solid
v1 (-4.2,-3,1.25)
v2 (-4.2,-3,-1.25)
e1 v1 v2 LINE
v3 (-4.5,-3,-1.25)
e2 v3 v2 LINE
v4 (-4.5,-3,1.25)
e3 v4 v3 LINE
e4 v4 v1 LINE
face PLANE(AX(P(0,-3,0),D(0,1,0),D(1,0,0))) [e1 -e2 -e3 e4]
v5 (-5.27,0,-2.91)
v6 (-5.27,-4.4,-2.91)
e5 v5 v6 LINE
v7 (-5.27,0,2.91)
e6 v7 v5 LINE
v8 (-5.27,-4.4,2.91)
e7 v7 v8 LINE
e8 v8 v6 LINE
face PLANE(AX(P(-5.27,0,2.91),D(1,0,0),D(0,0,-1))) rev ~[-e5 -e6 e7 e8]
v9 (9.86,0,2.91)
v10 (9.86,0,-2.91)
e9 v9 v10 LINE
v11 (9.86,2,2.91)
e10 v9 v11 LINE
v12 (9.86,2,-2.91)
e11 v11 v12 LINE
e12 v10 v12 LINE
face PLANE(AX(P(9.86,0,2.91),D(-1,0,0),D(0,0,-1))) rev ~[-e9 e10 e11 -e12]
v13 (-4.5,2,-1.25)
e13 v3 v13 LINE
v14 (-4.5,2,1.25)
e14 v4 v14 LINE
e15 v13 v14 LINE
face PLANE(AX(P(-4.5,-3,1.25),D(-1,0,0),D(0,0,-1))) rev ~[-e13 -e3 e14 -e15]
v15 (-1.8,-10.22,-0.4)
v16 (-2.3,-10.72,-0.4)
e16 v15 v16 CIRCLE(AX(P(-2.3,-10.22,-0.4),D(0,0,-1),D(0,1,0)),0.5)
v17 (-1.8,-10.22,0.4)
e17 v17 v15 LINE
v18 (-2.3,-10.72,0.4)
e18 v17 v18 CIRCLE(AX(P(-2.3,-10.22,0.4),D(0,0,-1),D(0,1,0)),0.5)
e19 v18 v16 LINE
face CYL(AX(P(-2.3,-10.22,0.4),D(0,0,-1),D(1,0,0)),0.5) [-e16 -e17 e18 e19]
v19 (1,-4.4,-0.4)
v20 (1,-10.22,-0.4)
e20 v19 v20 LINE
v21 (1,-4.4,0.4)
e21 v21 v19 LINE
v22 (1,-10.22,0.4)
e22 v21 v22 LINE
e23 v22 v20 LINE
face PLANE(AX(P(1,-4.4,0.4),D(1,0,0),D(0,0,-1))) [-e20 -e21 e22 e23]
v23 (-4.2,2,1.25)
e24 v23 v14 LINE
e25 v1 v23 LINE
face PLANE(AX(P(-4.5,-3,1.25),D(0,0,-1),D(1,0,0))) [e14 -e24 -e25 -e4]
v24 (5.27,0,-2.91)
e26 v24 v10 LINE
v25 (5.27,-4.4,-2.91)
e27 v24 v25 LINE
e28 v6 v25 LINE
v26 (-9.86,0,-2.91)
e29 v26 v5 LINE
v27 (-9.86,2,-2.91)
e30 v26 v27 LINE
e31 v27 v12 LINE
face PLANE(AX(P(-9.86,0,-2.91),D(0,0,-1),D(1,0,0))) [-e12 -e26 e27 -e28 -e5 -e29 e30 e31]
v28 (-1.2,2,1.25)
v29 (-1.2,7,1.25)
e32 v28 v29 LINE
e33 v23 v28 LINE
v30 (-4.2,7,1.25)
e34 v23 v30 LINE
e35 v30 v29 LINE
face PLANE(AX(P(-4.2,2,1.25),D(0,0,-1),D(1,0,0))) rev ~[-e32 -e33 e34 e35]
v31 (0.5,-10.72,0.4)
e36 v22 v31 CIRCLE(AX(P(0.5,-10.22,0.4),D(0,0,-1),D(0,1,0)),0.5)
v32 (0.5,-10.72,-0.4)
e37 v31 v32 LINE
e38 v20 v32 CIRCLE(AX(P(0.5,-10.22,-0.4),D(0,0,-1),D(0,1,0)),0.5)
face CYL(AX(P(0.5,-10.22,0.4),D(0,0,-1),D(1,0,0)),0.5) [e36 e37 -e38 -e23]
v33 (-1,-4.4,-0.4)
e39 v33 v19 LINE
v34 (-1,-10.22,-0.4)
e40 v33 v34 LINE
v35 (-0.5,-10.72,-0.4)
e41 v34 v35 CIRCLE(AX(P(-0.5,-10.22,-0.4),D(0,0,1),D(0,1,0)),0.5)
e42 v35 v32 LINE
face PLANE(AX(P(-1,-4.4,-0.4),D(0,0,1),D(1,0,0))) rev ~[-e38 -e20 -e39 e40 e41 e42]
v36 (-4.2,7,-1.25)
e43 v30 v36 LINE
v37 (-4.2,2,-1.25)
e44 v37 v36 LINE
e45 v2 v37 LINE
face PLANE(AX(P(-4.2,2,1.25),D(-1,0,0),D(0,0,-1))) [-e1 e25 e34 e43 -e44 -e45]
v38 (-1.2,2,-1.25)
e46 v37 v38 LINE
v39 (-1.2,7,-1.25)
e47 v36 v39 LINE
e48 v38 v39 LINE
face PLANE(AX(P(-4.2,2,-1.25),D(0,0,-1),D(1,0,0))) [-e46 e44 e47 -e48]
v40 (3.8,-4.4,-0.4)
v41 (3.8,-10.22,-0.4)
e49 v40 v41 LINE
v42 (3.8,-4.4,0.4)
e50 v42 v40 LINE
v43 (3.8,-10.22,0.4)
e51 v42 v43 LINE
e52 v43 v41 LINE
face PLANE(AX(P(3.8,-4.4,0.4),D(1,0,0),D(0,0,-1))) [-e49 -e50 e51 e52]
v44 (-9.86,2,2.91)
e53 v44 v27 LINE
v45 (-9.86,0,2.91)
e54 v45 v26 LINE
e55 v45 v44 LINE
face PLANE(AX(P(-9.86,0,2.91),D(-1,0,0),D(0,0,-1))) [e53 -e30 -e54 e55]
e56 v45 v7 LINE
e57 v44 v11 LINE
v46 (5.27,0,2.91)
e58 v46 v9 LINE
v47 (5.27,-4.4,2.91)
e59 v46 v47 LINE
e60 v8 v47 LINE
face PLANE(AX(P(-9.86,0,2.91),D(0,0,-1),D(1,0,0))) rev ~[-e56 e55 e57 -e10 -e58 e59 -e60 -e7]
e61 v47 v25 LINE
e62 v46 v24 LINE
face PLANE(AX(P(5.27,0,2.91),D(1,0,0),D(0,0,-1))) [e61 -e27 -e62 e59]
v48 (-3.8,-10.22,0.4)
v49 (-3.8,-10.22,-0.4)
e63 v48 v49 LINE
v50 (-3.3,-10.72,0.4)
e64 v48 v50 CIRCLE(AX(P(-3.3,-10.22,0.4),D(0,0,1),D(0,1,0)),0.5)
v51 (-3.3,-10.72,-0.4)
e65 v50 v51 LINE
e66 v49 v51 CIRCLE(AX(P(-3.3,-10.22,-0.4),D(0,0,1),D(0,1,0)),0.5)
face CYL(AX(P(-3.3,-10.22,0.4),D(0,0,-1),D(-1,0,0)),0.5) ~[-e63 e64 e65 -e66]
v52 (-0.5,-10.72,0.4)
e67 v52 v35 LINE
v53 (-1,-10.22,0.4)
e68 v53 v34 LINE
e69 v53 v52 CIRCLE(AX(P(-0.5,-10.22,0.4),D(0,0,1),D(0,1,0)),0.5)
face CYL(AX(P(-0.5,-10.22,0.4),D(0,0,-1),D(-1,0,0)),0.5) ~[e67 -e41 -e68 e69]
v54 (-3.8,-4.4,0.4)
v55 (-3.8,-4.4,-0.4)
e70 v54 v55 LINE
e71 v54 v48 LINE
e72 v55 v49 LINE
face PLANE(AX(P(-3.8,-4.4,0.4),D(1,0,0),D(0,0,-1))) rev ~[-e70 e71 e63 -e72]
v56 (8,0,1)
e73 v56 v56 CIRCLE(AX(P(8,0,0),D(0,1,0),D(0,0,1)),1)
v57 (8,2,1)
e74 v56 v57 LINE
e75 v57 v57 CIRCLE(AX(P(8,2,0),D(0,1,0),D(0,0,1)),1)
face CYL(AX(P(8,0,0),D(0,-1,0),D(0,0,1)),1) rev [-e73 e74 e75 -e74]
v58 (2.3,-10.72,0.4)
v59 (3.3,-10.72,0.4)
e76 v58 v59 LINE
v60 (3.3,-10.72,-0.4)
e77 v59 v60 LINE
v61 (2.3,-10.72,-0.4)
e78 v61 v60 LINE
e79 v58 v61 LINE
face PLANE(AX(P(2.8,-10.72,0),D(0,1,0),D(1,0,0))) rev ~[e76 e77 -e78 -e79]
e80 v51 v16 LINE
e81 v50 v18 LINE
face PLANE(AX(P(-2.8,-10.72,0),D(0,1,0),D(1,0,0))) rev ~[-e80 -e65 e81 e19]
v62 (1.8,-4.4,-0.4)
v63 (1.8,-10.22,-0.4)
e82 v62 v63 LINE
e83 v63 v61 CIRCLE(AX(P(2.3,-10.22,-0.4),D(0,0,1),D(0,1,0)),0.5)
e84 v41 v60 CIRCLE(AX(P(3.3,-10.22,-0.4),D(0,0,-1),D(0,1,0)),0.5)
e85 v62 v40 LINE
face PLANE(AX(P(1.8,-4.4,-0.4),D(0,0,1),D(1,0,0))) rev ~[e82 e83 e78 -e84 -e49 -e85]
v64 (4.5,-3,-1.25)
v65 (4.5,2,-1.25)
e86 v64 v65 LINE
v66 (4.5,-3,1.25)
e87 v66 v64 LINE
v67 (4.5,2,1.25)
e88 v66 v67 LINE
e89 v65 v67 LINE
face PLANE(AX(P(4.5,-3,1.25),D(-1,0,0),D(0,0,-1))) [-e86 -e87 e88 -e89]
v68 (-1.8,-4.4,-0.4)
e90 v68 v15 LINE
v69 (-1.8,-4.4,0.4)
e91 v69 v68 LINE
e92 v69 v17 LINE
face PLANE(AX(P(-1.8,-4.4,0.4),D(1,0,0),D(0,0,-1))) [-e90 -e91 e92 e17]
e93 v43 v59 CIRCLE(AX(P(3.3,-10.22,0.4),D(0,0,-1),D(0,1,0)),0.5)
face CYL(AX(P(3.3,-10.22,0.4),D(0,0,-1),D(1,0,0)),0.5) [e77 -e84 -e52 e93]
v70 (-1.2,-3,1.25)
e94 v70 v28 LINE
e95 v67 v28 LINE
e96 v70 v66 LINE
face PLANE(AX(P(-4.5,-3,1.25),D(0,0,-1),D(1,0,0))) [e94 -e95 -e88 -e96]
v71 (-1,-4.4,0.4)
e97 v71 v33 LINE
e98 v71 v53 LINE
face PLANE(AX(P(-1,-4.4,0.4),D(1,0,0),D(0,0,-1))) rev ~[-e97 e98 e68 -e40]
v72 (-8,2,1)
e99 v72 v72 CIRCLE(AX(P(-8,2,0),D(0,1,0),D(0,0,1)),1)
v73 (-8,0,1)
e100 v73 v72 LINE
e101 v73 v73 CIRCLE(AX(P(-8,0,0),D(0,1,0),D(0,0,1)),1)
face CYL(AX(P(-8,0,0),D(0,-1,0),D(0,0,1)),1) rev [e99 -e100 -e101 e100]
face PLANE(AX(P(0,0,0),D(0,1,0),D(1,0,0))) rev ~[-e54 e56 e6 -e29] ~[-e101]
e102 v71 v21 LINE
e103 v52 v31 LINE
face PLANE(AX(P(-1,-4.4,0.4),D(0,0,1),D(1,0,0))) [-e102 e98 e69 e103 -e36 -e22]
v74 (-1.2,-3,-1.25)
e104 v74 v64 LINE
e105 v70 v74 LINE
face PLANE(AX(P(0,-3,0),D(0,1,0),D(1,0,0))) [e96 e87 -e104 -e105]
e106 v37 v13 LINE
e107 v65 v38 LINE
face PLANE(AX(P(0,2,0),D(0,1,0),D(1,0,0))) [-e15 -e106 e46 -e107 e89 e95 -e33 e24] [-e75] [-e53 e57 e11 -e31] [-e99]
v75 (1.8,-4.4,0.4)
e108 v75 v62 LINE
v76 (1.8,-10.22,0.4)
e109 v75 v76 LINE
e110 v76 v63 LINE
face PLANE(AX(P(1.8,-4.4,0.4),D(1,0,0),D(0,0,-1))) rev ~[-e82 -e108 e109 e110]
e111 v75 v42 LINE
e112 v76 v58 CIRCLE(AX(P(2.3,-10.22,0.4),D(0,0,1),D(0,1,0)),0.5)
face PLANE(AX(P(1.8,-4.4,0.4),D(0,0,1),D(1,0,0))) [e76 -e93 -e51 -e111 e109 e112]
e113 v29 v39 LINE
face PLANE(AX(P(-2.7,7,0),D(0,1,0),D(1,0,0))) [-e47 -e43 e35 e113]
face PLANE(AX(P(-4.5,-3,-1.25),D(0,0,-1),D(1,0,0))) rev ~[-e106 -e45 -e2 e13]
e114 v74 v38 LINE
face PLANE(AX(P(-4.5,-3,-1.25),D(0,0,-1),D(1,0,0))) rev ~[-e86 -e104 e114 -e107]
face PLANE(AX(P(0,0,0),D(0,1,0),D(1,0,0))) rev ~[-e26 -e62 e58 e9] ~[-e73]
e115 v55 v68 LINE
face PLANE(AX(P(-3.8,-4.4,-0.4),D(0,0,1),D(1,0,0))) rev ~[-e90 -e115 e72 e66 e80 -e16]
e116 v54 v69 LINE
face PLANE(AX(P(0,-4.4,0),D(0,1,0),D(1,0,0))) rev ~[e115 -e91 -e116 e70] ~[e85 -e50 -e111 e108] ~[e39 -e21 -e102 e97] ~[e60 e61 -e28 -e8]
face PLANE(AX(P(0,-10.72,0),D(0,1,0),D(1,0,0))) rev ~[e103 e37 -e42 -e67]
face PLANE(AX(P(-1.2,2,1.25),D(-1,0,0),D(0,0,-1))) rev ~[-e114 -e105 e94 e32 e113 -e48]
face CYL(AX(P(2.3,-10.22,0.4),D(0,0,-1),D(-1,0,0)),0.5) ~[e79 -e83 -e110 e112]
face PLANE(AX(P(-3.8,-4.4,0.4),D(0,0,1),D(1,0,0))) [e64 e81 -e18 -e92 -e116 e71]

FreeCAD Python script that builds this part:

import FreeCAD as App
import Part
import Sketcher

V = App.Vector


def edges_at(feature, points):
    """Names of the edges that pass closest to the given points."""
    edges = feature.Shape.Edges
    near = lambda p: min(range(len(edges)), key=lambda i: edges[i].distToShape(Part.Vertex(*p))[0])
    return sorted({f"Edge{near(p) + 1}" for p in points})

doc = App.newDocument("Part")
body = doc.addObject("PartDesign::Body", "Body")

# Sketch on XZ plane
sketch1 = body.newObject("Sketcher::SketchObject", "Sketch")
sketch1.AttachmentSupport = (doc.getObject("XZ_Plane"), [""])
sketch1.MapMode = "FlatFace"
sketch1.addGeometry(Part.LineSegment(V(-9.9, -2.9, 0), V(-9.9, 2.9, 0)), False)
sketch1.addGeometry(Part.LineSegment(V(-9.9, 2.9, 0), V(9.9, 2.9, 0)), False)
sketch1.addGeometry(Part.LineSegment(V(9.9, 2.9, 0), V(9.9, -2.9, 0)), False)
sketch1.addGeometry(Part.LineSegment(V(9.9, -2.9, 0), V(-9.9, -2.9, 0)), False)
sketch1.addGeometry(Part.Circle(V(-8, 0, 0), V(0, 0, 1), 1), False)
sketch1.addGeometry(Part.Circle(V(8, 0, 0), V(0, 0, 1), 1), False)
sketch1.addConstraint(Sketcher.Constraint("Coincident", 0, 2, 1, 1))
sketch1.addConstraint(Sketcher.Constraint("Coincident", 1, 2, 2, 1))
sketch1.addConstraint(Sketcher.Constraint("Coincident", 2, 2, 3, 1))
sketch1.addConstraint(Sketcher.Constraint("Coincident", 3, 2, 0, 1))
sketch1.addConstraint(Sketcher.Constraint("Vertical", 0))
sketch1.addConstraint(Sketcher.Constraint("Horizontal", 1))
sketch1.addConstraint(Sketcher.Constraint("Vertical", 2))
sketch1.addConstraint(Sketcher.Constraint("Horizontal", 3))
sketch1.addConstraint(Sketcher.Constraint("Equal", 4, 5))
sketch1.addConstraint(Sketcher.Constraint("Symmetric", 4, 3, 5, 3, -1, 1))
sketch1.addConstraint(Sketcher.Constraint("Symmetric", 0, 2, 2, 2, -1, 1))
sketch1.addConstraint(Sketcher.Constraint("PointOnObject", 4, 3, -1))
sketch1.addConstraint(Sketcher.Constraint("Diameter", 4, 2.0))
sketch1.addConstraint(Sketcher.Constraint("DistanceX", 4, 3, -1, 1, 8.0))
sketch1.addConstraint(Sketcher.Constraint("DistanceX", 1, 1, 1, 2, 19.72))
sketch1.addConstraint(Sketcher.Constraint("DistanceY", 0, 1, 0, 2, 5.82))
pad1 = body.newObject("PartDesign::Pad", "Pad")
pad1.Profile = sketch1
pad1.Length = 2
pad1.Reversed = True

# Sketch on XZ plane
sketch2 = body.newObject("Sketcher::SketchObject", "Sketch001")
sketch2.AttachmentSupport = (doc.getObject("XZ_Plane"), [""])
sketch2.MapMode = "FlatFace"
sketch2.addGeometry(Part.LineSegment(V(-5, -3, 0), V(-5, 3, 0)), False)
sketch2.addGeometry(Part.LineSegment(V(-5, 3, 0), V(5, 3, 0)), False)
sketch2.addGeometry(Part.LineSegment(V(5, 3, 0), V(5, -3, 0)), False)
sketch2.addGeometry(Part.LineSegment(V(5, -3, 0), V(-5, -3, 0)), False)
sketch2.addConstraint(Sketcher.Constraint("Coincident", 0, 2, 1, 1))
sketch2.addConstraint(Sketcher.Constraint("Coincident", 1, 2, 2, 1))
sketch2.addConstraint(Sketcher.Constraint("Coincident", 2, 2, 3, 1))
sketch2.addConstraint(Sketcher.Constraint("Coincident", 3, 2, 0, 1))
sketch2.addConstraint(Sketcher.Constraint("Vertical", 0))
sketch2.addConstraint(Sketcher.Constraint("Horizontal", 1))
sketch2.addConstraint(Sketcher.Constraint("Vertical", 2))
sketch2.addConstraint(Sketcher.Constraint("Horizontal", 3))
sketch2.addConstraint(Sketcher.Constraint("Symmetric", 0, 2, 2, 2, -1, 1))
sketch2.addConstraint(Sketcher.Constraint("DistanceX", 1, 1, 1, 2, 10.54))
sketch2.addConstraint(Sketcher.Constraint("DistanceY", 0, 1, 0, 2, 5.82))
pad2 = body.newObject("PartDesign::Pad", "Pad001")
pad2.Profile = sketch2
pad2.Length = 4.4

# Sketch on XZ plane
sketch3 = body.newObject("Sketcher::SketchObject", "Sketch002")
sketch3.AttachmentSupport = (doc.getObject("XZ_Plane"), [""])
sketch3.MapMode = "FlatFace"
sketch3.addGeometry(Part.LineSegment(V(-4.5, -1.2, 0), V(-4.5, 1.2, 0)), False)
sketch3.addGeometry(Part.LineSegment(V(-4.5, 1.2, 0), V(4.5, 1.2, 0)), False)
sketch3.addGeometry(Part.LineSegment(V(4.5, 1.2, 0), V(4.5, -1.2, 0)), False)
sketch3.addGeometry(Part.LineSegment(V(4.5, -1.2, 0), V(-4.5, -1.2, 0)), False)
sketch3.addConstraint(Sketcher.Constraint("Coincident", 0, 2, 1, 1))
sketch3.addConstraint(Sketcher.Constraint("Coincident", 1, 2, 2, 1))
sketch3.addConstraint(Sketcher.Constraint("Coincident", 2, 2, 3, 1))
sketch3.addConstraint(Sketcher.Constraint("Coincident", 3, 2, 0, 1))
sketch3.addConstraint(Sketcher.Constraint("Vertical", 0))
sketch3.addConstraint(Sketcher.Constraint("Horizontal", 1))
sketch3.addConstraint(Sketcher.Constraint("Vertical", 2))
sketch3.addConstraint(Sketcher.Constraint("Horizontal", 3))
sketch3.addConstraint(Sketcher.Constraint("Symmetric", 0, 2, 2, 2, -1, 1))
sketch3.addConstraint(Sketcher.Constraint("DistanceX", 1, 1, 1, 2, 9.0))
sketch3.addConstraint(Sketcher.Constraint("DistanceY", 0, 1, 0, 2, 2.5))
pocket1 = body.newObject("PartDesign::Pocket", "Pocket")
pocket1.Profile = sketch3
pocket1.Type = "TwoLengths"
pocket1.Length = 12.182473
pocket1.Length2 = 3

# Sketch on XZ plane
sketch4 = body.newObject("Sketcher::SketchObject", "Sketch003")
sketch4.AttachmentSupport = (doc.getObject("XZ_Plane"), [""])
sketch4.MapMode = "FlatFace"
sketch4.AttachmentOffset = App.Placement(V(0, 0, 3), App.Rotation())
sketch4.addGeometry(Part.LineSegment(V(-4.2, -1.2, 0), V(-4.2, 1.2, 0)), False)
sketch4.addGeometry(Part.LineSegment(V(-4.2, 1.2, 0), V(-1.2, 1.2, 0)), False)
sketch4.addGeometry(Part.LineSegment(V(-1.2, 1.2, 0), V(-1.2, -1.2, 0)), False)
sketch4.addGeometry(Part.LineSegment(V(-1.2, -1.2, 0), V(-4.2, -1.2, 0)), False)
sketch4.addConstraint(Sketcher.Constraint("Coincident", 0, 2, 1, 1))
sketch4.addConstraint(Sketcher.Constraint("Coincident", 1, 2, 2, 1))
sketch4.addConstraint(Sketcher.Constraint("Coincident", 2, 2, 3, 1))
sketch4.addConstraint(Sketcher.Constraint("Coincident", 3, 2, 0, 1))
sketch4.addConstraint(Sketcher.Constraint("Vertical", 0))
sketch4.addConstraint(Sketcher.Constraint("Horizontal", 1))
sketch4.addConstraint(Sketcher.Constraint("Vertical", 2))
sketch4.addConstraint(Sketcher.Constraint("Horizontal", 3))
sketch4.addConstraint(Sketcher.Constraint("DistanceX", 1, 1, 1, 2, 3.0))
sketch4.addConstraint(Sketcher.Constraint("DistanceY", 0, 1, 0, 2, 2.5))
sketch4.addConstraint(Sketcher.Constraint("DistanceX", 0, 2, -1, 1, 4.2))
sketch4.addConstraint(Sketcher.Constraint("DistanceY", -1, 1, 0, 2, 1.25))
pad3 = body.newObject("PartDesign::Pad", "Pad002")
pad3.Profile = sketch4
pad3.Length = 5
pad3.Reversed = True

# Sketch on XZ plane
sketch5 = body.newObject("Sketcher::SketchObject", "Sketch004")
sketch5.AttachmentSupport = (doc.getObject("XZ_Plane"), [""])
sketch5.MapMode = "FlatFace"
sketch5.AttachmentOffset = App.Placement(V(0, 0, -2), App.Rotation())
sketch5.addGeometry(Part.LineSegment(V(-4.2, -1.2, 0), V(-4.2, 1.2, 0)), False)
sketch5.addGeometry(Part.LineSegment(V(-4.2, 1.2, 0), V(-1.2, 1.2, 0)), False)
sketch5.addGeometry(Part.LineSegment(V(-1.2, 1.2, 0), V(-1.2, -1.2, 0)), False)
sketch5.addGeometry(Part.LineSegment(V(-1.2, -1.2, 0), V(-4.2, -1.2, 0)), False)
sketch5.addConstraint(Sketcher.Constraint("Coincident", 0, 2, 1, 1))
sketch5.addConstraint(Sketcher.Constraint("Coincident", 1, 2, 2, 1))
sketch5.addConstraint(Sketcher.Constraint("Coincident", 2, 2, 3, 1))
sketch5.addConstraint(Sketcher.Constraint("Coincident", 3, 2, 0, 1))
sketch5.addConstraint(Sketcher.Constraint("Vertical", 0))
sketch5.addConstraint(Sketcher.Constraint("Horizontal", 1))
sketch5.addConstraint(Sketcher.Constraint("Vertical", 2))
sketch5.addConstraint(Sketcher.Constraint("Horizontal", 3))
sketch5.addConstraint(Sketcher.Constraint("DistanceX", 1, 1, 1, 2, 3.0))
sketch5.addConstraint(Sketcher.Constraint("DistanceY", 0, 1, 0, 2, 2.5))
sketch5.addConstraint(Sketcher.Constraint("DistanceX", 0, 2, -1, 1, 4.2))
sketch5.addConstraint(Sketcher.Constraint("DistanceY", -1, 1, 0, 2, 1.25))
pad4 = body.newObject("PartDesign::Pad", "Pad003")
pad4.Profile = sketch5
pad4.Length = 5
pad4.Reversed = True

# Sketch on XZ plane
sketch6 = body.newObject("Sketcher::SketchObject", "Sketch005")
sketch6.AttachmentSupport = (doc.getObject("XZ_Plane"), [""])
sketch6.MapMode = "FlatFace"
sketch6.AttachmentOffset = App.Placement(V(0, 0, 4.4), App.Rotation())
sketch6.addGeometry(Part.LineSegment(V(-3.8, -0.4, 0), V(-3.8, 0.4, 0)), False)
sketch6.addGeometry(Part.LineSegment(V(-3.8, 0.4, 0), V(-1.8, 0.4, 0)), False)
sketch6.addGeometry(Part.LineSegment(V(-1.8, 0.4, 0), V(-1.8, -0.4, 0)), False)
sketch6.addGeometry(Part.LineSegment(V(-1.8, -0.4, 0), V(-3.8, -0.4, 0)), False)
sketch6.addGeometry(Part.LineSegment(V(-1, -0.4, 0), V(-1, 0.4, 0)), False)
sketch6.addGeometry(Part.LineSegment(V(-1, 0.4, 0), V(1, 0.4, 0)), False)
sketch6.addGeometry(Part.LineSegment(V(1, 0.4, 0), V(1, -0.4, 0)), False)
sketch6.addGeometry(Part.LineSegment(V(1, -0.4, 0), V(-1, -0.4, 0)), False)
sketch6.addGeometry(Part.LineSegment(V(1.8, -0.4, 0), V(1.8, 0.4, 0)), False)
sketch6.addGeometry(Part.LineSegment(V(1.8, 0.4, 0), V(3.8, 0.4, 0)), False)
sketch6.addGeometry(Part.LineSegment(V(3.8, 0.4, 0), V(3.8, -0.4, 0)), False)
sketch6.addGeometry(Part.LineSegment(V(3.8, -0.4, 0), V(1.8, -0.4, 0)), False)
sketch6.addConstraint(Sketcher.Constraint("Coincident", 0, 2, 1, 1))
sketch6.addConstraint(Sketcher.Constraint("Coincident", 1, 2, 2, 1))
sketch6.addConstraint(Sketcher.Constraint("Coincident", 2, 2, 3, 1))
sketch6.addConstraint(Sketcher.Constraint("Coincident", 3, 2, 0, 1))
sketch6.addConstraint(Sketcher.Constraint("Coincident", 4, 2, 5, 1))
sketch6.addConstraint(Sketcher.Constraint("Coincident", 5, 2, 6, 1))
sketch6.addConstraint(Sketcher.Constraint("Coincident", 6, 2, 7, 1))
sketch6.addConstraint(Sketcher.Constraint("Coincident", 7, 2, 4, 1))
sketch6.addConstraint(Sketcher.Constraint("Coincident", 8, 2, 9, 1))
sketch6.addConstraint(Sketcher.Constraint("Coincident", 9, 2, 10, 1))
sketch6.addConstraint(Sketcher.Constraint("Coincident", 10, 2, 11, 1))
sketch6.addConstraint(Sketcher.Constraint("Coincident", 11, 2, 8, 1))
sketch6.addConstraint(Sketcher.Constraint("Vertical", 0))
sketch6.addConstraint(Sketcher.Constraint("Horizontal", 1))
sketch6.addConstraint(Sketcher.Constraint("Vertical", 2))
sketch6.addConstraint(Sketcher.Constraint("Horizontal", 3))
sketch6.addConstraint(Sketcher.Constraint("Vertical", 4))
sketch6.addConstraint(Sketcher.Constraint("Horizontal", 5))
sketch6.addConstraint(Sketcher.Constraint("Vertical", 6))
sketch6.addConstraint(Sketcher.Constraint("Horizontal", 7))
sketch6.addConstraint(Sketcher.Constraint("Vertical", 8))
sketch6.addConstraint(Sketcher.Constraint("Horizontal", 9))
sketch6.addConstraint(Sketcher.Constraint("Vertical", 10))
sketch6.addConstraint(Sketcher.Constraint("Horizontal", 11))
sketch6.addConstraint(Sketcher.Constraint("Symmetric", 4, 2, 6, 2, -1, 1))
sketch6.addConstraint(Sketcher.Constraint("Symmetric", 2, 2, 8, 2, -1, 1))
sketch6.addConstraint(Sketcher.Constraint("Symmetric", 0, 2, 10, 2, -1, 1))
sketch6.addConstraint(Sketcher.Constraint("Horizontal", 1, 2, 4, 2))
sketch6.addConstraint(Sketcher.Constraint("Horizontal", 3, 2, 6, 2))
sketch6.addConstraint(Sketcher.Constraint("Equal", 3, 5))
sketch6.addConstraint(Sketcher.Constraint("DistanceX", 1, 1, 1, 2, 2.0))
sketch6.addConstraint(Sketcher.Constraint("DistanceY", 0, 1, 0, 2, 0.8))
sketch6.addConstraint(Sketcher.Constraint("DistanceX", 0, 2, -1, 1, 3.8))
pad5 = body.newObject("PartDesign::Pad", "Pad004")
pad5.Profile = sketch6
pad5.Length = 6.32
doc.recompute()

fillet = body.newObject("PartDesign::Fillet", "Fillet")
fillet.Base = (pad5, edges_at(pad5, [
    (1.8, -10.72, 0),
    (3.8, -10.72, 0),
    (-3.8, -10.72, 0),
    (-1.8, -10.72, 0),
    (-1, -10.72, 0),
    (1, -10.72, 0),
]))
fillet.Radius = 0.5

doc.recompute()
